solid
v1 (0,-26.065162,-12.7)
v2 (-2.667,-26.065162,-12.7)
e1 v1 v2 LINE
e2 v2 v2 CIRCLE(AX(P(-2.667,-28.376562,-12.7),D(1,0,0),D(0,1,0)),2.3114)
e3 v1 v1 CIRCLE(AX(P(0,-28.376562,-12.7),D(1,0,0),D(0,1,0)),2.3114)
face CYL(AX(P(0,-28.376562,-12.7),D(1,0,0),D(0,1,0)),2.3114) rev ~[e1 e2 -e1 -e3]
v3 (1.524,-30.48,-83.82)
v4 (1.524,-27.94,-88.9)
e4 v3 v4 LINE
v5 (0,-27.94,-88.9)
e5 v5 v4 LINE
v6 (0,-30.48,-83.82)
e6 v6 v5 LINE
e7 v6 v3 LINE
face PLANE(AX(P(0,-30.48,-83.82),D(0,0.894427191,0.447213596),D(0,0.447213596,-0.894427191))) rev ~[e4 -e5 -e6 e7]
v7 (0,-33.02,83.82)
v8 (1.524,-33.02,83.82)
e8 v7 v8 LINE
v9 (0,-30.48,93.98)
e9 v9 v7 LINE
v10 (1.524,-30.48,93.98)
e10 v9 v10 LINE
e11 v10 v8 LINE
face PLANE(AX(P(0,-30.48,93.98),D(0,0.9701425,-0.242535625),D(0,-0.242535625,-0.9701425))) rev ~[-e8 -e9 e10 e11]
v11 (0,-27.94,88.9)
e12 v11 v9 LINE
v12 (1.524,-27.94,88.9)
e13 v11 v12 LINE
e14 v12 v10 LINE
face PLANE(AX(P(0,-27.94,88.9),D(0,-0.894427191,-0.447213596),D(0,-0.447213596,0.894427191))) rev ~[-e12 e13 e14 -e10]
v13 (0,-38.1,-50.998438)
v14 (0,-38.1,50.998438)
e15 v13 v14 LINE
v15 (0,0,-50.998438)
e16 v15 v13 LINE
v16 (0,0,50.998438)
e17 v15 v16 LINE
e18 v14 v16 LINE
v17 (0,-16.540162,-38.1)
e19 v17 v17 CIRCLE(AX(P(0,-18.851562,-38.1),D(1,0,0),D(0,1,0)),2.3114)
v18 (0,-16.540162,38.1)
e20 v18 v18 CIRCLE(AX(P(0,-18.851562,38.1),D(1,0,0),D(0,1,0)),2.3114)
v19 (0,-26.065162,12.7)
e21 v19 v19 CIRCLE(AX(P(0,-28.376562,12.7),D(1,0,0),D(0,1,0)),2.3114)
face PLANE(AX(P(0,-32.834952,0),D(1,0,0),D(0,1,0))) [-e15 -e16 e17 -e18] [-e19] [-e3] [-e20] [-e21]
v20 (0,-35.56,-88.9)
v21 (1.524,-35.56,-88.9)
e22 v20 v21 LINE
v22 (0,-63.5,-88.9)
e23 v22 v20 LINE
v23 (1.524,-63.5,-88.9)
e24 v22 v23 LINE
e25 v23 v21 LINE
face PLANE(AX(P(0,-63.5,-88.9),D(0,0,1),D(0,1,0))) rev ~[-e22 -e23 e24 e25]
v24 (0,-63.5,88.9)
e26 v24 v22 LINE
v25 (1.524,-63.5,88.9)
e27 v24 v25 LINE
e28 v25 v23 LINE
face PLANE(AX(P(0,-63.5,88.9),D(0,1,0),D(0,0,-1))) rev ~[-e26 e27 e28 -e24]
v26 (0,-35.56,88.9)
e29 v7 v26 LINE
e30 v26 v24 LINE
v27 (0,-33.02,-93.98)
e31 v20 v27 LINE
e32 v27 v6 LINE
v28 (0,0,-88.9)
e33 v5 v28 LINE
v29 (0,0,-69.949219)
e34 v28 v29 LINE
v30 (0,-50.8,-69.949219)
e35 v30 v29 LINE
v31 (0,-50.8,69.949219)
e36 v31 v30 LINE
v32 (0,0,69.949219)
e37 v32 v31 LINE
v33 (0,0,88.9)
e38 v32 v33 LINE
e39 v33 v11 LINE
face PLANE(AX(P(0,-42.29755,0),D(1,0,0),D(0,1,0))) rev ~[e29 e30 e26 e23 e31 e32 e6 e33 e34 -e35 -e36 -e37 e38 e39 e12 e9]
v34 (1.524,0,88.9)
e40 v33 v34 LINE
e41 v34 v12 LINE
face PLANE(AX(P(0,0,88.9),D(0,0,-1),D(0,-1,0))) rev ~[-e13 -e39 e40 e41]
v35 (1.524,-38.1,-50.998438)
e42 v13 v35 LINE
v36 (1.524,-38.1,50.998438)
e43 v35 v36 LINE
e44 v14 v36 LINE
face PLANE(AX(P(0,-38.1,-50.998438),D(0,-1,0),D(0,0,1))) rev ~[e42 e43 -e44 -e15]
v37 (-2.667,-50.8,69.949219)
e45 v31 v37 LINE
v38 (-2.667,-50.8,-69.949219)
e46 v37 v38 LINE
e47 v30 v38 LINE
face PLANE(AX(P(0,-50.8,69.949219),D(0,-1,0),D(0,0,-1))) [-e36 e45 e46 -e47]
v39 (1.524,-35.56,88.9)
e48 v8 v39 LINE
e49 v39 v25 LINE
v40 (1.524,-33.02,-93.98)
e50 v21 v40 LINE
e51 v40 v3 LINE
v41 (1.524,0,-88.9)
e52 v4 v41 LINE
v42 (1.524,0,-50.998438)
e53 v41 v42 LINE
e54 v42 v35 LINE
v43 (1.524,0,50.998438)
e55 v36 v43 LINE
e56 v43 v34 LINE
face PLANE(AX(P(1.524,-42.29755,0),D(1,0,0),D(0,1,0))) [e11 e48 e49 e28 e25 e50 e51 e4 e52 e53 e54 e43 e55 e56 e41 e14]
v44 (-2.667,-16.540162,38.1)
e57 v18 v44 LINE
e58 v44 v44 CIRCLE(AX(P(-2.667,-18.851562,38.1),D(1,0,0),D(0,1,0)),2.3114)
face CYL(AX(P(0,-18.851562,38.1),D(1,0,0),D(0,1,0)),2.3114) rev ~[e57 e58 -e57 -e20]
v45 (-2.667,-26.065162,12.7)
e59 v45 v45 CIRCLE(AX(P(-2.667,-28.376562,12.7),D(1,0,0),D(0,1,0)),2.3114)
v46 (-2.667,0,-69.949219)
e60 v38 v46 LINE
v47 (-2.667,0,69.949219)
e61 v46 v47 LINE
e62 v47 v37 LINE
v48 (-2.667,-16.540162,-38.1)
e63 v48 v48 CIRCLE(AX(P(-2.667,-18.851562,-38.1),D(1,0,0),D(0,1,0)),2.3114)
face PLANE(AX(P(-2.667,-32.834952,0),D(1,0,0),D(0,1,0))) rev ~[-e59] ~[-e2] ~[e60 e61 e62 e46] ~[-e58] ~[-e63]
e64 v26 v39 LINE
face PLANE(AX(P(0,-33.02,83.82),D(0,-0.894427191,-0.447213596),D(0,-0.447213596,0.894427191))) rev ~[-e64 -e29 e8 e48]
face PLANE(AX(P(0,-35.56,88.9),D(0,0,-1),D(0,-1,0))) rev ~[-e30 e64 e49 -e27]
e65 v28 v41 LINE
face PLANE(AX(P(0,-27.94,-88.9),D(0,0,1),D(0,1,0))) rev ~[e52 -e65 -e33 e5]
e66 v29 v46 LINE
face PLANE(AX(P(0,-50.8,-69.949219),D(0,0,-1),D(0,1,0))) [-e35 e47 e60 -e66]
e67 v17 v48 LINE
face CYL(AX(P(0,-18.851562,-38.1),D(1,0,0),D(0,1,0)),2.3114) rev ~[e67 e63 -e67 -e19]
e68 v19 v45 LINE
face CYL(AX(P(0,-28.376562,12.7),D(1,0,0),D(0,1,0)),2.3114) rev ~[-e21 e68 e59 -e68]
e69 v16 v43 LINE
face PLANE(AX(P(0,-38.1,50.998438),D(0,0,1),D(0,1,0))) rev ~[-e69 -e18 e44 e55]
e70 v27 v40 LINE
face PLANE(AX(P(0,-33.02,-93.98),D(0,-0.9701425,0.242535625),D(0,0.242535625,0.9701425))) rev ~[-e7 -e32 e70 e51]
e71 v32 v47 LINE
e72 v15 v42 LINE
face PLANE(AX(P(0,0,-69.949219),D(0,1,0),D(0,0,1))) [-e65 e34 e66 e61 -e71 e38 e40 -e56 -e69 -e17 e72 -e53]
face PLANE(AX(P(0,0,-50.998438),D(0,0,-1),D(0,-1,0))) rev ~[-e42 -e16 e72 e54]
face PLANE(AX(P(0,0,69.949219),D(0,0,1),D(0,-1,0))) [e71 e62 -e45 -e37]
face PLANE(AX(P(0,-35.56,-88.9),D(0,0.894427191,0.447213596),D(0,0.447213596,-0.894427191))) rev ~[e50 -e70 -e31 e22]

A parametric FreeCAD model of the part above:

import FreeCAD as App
import Part
import Sketcher
Q = App.Units.Quantity

doc = App.newDocument("Part")
body = doc.addObject("PartDesign::Body", "Body")

sketch1 = body.newObject("Sketcher::SketchObject", "Sketch")
sketch1.AttachmentSupport = (doc.getObject("YZ_Plane"), [""])
sketch1.MapMode = "FlatFace"
sketch1.addGeometry([
    Part.LineSegment(App.Vector(0, 89, 0), App.Vector(-28, 89, 0)),
    Part.LineSegment(App.Vector(-28, 89, 0), App.Vector(-30, 94, 0)),
    Part.LineSegment(App.Vector(-30, 94, 0), App.Vector(-33, 84, 0)),
    Part.LineSegment(App.Vector(-33, 84, 0), App.Vector(-36, 89, 0)),
    Part.LineSegment(App.Vector(-36, 89, 0), App.Vector(-64, 89, 0)),
    Part.LineSegment(App.Vector(-64, 89, 0), App.Vector(-64, -89, 0)),
    Part.LineSegment(App.Vector(-64, -89, 0), App.Vector(-36, -89, 0)),
    Part.LineSegment(App.Vector(-36, -89, 0), App.Vector(-33, -94, 0)),
    Part.LineSegment(App.Vector(-33, -94, 0), App.Vector(-30, -84, 0)),
    Part.LineSegment(App.Vector(-30, -84, 0), App.Vector(-28, -89, 0)),
    Part.LineSegment(App.Vector(-28, -89, 0), App.Vector(0, -89, 0)),
    Part.LineSegment(App.Vector(0, -89, 0), App.Vector(0, -51, 0)),
    Part.LineSegment(App.Vector(0, -51, 0), App.Vector(-38, -51, 0)),
    Part.LineSegment(App.Vector(-38, -51, 0), App.Vector(-38, 51, 0)),
    Part.LineSegment(App.Vector(-38, 51, 0), App.Vector(0, 51, 0)),
    Part.LineSegment(App.Vector(0, 51, 0), App.Vector(0, 89, 0)),
], False)
sketch1.addConstraint([
    Sketcher.Constraint("Coincident", 0, 2, 1, 1),
    Sketcher.Constraint("Coincident", 1, 2, 2, 1),
    Sketcher.Constraint("Coincident", 2, 2, 3, 1),
    Sketcher.Constraint("Coincident", 3, 2, 4, 1),
    Sketcher.Constraint("Coincident", 4, 2, 5, 1),
    Sketcher.Constraint("Coincident", 5, 2, 6, 1),
    Sketcher.Constraint("Coincident", 6, 2, 7, 1),
    Sketcher.Constraint("Coincident", 7, 2, 8, 1),
    Sketcher.Constraint("Coincident", 8, 2, 9, 1),
    Sketcher.Constraint("Coincident", 9, 2, 10, 1),
    Sketcher.Constraint("Coincident", 10, 2, 11, 1),
    Sketcher.Constraint("Coincident", 11, 2, 12, 1),
    Sketcher.Constraint("Coincident", 12, 2, 13, 1),
    Sketcher.Constraint("Coincident", 13, 2, 14, 1),
    Sketcher.Constraint("Coincident", 14, 2, 15, 1),
    Sketcher.Constraint("Coincident", 15, 2, 0, 1),
    Sketcher.Constraint("Horizontal", 0),
    Sketcher.Constraint("Horizontal", 4),
    Sketcher.Constraint("Vertical", 5),
    Sketcher.Constraint("Horizontal", 6),
    Sketcher.Constraint("Horizontal", 10),
    Sketcher.Constraint("Vertical", 11),
    Sketcher.Constraint("Horizontal", 12),
    Sketcher.Constraint("Vertical", 13),
    Sketcher.Constraint("Horizontal", 14),
    Sketcher.Constraint("Vertical", 15),
    Sketcher.Constraint("Symmetric", 11, 2, 14, 2, -1, 1),
    Sketcher.Constraint("Symmetric", 3, 2, 6, 2, -1),
    Sketcher.Constraint("Symmetric", 0, 2, 9, 2, -1),
    Sketcher.Constraint("PointOnObject", 10, 2, -2),
    Sketcher.Constraint("Parallel", 1, 3),
    Sketcher.Constraint("Parallel", 3, 7),
    Sketcher.Constraint("Parallel", 2, 8),
    Sketcher.Constraint("Parallel", 7, 9),
    Sketcher.Constraint("Horizontal", 0, 2, 3, 2),
    Sketcher.Constraint("Vertical", 2, 2, 7, 2),
    Sketcher.Constraint("Equal", 0, 4),
    Sketcher.Constraint("Equal", 1, 3),
    Sketcher.Constraint("DistanceY", 5, 2, 5, 1, Q("7 in")),
    Sketcher.Constraint("DistanceX", 0, 2, 0, 1, Q("1.1 in")),
    Sketcher.Constraint("DistanceX", 12, 2, 12, 1, Q("1.5 in")),
    Sketcher.Constraint("DistanceX", 4, 2, 13, 2, Q("1 in")),
    Sketcher.Constraint("DistanceX", 1, 2, -1, 1, Q("1.2 in")),
    Sketcher.Constraint("DistanceY", -1, 1, 1, 2, Q("3.7 in")),
    Sketcher.Constraint("DistanceY", 13, 1, 13, 2, Q("4.015625 in")),
])
pad1 = body.newObject("PartDesign::Pad", "Pad")
pad1.Profile = sketch1
pad1.Length = Q("0.06 in")

sketch2 = body.newObject("Sketcher::SketchObject", "Sketch001")
sketch2.AttachmentSupport = (doc.getObject("YZ_Plane"), [""])
sketch2.MapMode = "FlatFace"
sketch2.addGeometry([
    Part.LineSegment(App.Vector(0, 69.9, 0), App.Vector(-50.8, 69.9, 0)),
    Part.LineSegment(App.Vector(-50.8, 69.9, 0), App.Vector(-50.8, -69.9, 0)),
    Part.LineSegment(App.Vector(-50.8, -69.9, 0), App.Vector(0, -69.9, 0)),
    Part.LineSegment(App.Vector(0, -69.9, 0), App.Vector(0, 69.9, 0)),
    Part.Circle(App.Vector(-28.4, -12.7, 0), App.Vector(0, 0, 1), 2.3),
    Part.Circle(App.Vector(-18.9, -38.1, 0), App.Vector(0, 0, 1), 2.3),
    Part.Circle(App.Vector(-28.4, 12.7, 0), App.Vector(0, 0, 1), 2.3),
    Part.Circle(App.Vector(-18.9, 38.1, 0), App.Vector(0, 0, 1), 2.3),
], False)
sketch2.addConstraint([
    Sketcher.Constraint("Coincident", 0, 2, 1, 1),
    Sketcher.Constraint("Coincident", 1, 2, 2, 1),
    Sketcher.Constraint("Coincident", 2, 2, 3, 1),
    Sketcher.Constraint("Coincident", 3, 2, 0, 1),
    Sketcher.Constraint("Horizontal", 0),
    Sketcher.Constraint("Vertical", 1),
    Sketcher.Constraint("Horizontal", 2),
    Sketcher.Constraint("Vertical", 3),
    Sketcher.Constraint("Equal", 4, 5),
    Sketcher.Constraint("Equal", 5, 6),
    Sketcher.Constraint("Equal", 6, 7),
    Sketcher.Constraint("Symmetric", 2, 2, 3, 2, -1, 1),
    Sketcher.Constraint("Symmetric", 4, 3, 6, 3, -1),
    Sketcher.Constraint("Symmetric", 5, 3, 7, 3, -1),
    Sketcher.Constraint("DistanceX", 0, 2, 0, 1, Q("2 in")),
    Sketcher.Constraint("Diameter", 4, Q("0.182 in")),
    Sketcher.Constraint("DistanceY", 5, 3, 4, 3, Q("1 in")),
    Sketcher.Constraint("DistanceY", 4, 3, 6, 3, Q("1 in")),
    Sketcher.Constraint("DistanceX", 4, 3, 5, 3, Q("0.375 in")),
    Sketcher.Constraint("DistanceY", 1, 2, 1, 1, 139.898438),
    Sketcher.Constraint("DistanceX", 4, 3, -1, 1, 28.376562),
])
pad2 = body.newObject("PartDesign::Pad", "Pad001")
pad2.Profile = sketch2
pad2.Length = Q("0.105 in")
pad2.Reversed = True

doc.recompute()
